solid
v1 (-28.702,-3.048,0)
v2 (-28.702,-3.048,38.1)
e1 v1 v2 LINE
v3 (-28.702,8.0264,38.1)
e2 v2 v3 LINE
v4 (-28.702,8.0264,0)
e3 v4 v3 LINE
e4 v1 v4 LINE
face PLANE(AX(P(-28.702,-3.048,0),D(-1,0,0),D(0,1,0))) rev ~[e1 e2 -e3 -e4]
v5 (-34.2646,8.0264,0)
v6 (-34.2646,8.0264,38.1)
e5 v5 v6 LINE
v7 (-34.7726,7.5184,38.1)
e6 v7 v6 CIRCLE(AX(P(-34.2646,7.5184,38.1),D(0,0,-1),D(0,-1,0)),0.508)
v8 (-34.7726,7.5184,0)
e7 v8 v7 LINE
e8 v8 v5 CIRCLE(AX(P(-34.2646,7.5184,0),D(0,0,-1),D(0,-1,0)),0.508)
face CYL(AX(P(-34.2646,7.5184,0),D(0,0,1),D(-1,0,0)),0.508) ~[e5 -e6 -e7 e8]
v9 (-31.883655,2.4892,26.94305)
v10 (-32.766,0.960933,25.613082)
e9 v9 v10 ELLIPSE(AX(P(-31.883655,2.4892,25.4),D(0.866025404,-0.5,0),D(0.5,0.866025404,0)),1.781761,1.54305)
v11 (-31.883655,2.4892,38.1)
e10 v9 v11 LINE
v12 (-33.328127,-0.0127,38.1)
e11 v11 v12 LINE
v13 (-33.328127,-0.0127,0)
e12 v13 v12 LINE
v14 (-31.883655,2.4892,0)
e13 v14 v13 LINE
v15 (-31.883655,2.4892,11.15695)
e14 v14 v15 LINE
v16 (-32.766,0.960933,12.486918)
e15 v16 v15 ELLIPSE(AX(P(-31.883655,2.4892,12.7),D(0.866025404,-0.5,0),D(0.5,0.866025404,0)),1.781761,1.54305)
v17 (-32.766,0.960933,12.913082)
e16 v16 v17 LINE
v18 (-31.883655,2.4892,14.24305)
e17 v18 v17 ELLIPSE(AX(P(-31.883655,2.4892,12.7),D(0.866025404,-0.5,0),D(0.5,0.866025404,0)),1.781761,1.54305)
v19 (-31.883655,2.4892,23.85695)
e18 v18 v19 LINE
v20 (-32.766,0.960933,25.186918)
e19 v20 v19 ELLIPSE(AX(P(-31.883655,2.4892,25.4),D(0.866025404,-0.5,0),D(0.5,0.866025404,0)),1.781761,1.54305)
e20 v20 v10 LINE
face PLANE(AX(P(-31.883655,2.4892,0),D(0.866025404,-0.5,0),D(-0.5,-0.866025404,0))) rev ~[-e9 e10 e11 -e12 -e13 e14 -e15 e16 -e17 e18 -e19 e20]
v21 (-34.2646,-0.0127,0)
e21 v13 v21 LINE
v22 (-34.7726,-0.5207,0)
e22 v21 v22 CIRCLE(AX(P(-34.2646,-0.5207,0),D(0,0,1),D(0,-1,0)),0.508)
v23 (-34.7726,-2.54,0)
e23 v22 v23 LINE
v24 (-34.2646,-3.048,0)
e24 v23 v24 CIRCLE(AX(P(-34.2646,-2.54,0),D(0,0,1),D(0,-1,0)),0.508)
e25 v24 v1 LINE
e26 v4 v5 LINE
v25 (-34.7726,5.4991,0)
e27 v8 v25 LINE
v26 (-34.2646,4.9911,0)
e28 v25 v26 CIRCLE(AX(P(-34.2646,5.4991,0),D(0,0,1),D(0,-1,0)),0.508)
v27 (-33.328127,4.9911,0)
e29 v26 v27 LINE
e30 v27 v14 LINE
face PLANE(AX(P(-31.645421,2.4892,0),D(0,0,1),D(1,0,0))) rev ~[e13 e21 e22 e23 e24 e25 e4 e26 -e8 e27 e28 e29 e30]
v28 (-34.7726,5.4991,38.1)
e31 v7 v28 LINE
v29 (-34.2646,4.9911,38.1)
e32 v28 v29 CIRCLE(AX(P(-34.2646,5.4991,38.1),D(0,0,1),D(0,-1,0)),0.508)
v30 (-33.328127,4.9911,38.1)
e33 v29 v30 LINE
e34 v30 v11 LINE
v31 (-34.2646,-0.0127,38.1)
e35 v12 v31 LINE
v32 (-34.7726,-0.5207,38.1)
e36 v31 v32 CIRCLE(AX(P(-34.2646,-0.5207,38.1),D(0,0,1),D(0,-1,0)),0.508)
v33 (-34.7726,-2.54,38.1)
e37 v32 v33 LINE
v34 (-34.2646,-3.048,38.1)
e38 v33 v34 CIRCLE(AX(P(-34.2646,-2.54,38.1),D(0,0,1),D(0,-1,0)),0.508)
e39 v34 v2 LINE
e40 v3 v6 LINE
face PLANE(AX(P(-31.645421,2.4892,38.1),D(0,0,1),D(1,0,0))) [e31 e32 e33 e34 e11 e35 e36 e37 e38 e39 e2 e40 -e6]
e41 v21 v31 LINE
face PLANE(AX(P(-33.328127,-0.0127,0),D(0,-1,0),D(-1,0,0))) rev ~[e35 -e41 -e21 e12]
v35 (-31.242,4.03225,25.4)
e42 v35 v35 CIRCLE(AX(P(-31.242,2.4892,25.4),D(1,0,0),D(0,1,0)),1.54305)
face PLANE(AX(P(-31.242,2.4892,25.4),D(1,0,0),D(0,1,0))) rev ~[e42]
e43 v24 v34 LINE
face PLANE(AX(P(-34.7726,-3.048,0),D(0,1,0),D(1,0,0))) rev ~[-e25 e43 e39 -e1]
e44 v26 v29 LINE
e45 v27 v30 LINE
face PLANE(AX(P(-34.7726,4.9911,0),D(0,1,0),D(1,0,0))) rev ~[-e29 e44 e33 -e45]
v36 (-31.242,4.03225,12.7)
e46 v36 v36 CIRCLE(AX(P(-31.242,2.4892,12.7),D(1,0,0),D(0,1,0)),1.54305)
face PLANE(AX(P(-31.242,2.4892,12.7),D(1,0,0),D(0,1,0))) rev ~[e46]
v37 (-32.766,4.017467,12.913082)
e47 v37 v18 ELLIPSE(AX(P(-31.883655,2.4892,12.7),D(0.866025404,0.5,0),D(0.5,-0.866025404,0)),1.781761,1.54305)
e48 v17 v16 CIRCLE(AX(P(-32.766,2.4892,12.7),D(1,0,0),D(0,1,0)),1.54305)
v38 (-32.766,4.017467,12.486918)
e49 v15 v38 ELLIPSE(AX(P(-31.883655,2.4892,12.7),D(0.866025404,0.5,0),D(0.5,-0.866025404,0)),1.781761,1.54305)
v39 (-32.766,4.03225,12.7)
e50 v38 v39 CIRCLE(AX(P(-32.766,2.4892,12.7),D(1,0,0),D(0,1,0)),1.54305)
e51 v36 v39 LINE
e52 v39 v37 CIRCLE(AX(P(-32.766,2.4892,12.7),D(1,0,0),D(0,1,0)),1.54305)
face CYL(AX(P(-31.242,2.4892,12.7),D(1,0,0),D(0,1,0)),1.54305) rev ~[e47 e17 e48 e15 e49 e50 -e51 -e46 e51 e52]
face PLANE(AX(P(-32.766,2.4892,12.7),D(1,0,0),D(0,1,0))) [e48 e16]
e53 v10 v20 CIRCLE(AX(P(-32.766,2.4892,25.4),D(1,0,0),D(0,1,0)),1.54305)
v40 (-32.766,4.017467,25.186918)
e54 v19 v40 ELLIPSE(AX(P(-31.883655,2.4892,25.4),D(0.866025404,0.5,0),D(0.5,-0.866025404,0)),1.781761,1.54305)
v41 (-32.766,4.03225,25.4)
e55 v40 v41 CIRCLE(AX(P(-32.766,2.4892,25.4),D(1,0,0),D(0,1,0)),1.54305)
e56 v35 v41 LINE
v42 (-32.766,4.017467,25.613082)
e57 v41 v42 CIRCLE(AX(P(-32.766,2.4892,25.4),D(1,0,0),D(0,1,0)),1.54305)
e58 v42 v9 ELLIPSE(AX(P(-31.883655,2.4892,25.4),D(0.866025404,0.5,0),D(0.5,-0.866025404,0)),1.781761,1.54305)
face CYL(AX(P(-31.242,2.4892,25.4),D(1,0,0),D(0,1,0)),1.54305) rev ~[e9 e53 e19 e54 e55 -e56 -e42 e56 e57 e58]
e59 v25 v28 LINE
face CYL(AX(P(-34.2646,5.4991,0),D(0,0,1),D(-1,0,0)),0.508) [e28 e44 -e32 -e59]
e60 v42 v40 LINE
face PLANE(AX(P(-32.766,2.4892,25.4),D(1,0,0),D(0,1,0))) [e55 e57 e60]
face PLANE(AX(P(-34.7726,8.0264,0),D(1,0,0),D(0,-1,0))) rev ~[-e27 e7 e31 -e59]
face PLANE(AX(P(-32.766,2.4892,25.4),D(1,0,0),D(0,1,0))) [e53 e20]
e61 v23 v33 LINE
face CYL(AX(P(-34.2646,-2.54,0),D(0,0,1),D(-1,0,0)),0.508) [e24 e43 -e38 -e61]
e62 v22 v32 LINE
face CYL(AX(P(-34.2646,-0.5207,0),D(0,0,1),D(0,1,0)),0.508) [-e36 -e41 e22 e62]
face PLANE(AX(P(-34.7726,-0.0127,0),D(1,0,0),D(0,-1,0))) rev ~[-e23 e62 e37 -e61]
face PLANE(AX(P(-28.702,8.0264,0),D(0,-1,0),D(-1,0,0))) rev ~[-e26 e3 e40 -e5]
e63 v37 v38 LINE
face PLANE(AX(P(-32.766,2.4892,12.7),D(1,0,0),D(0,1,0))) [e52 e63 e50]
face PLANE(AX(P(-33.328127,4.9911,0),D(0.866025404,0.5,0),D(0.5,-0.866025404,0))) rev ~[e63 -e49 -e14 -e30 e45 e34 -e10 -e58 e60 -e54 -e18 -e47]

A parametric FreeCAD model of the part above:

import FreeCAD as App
import Part
import Sketcher
from FreeCAD import Vector
Q = App.Units.Quantity


def edges_at(feature, points):
    """Names of the edges that pass closest to the given points."""
    edges = feature.Shape.Edges
    near = lambda p: min(range(len(edges)), key=lambda i: edges[i].distToShape(Part.Vertex(*p))[0])
    return sorted({f"Edge{near(p) + 1}" for p in points})


def add_polygon(sketch, points):
    """Adds a closed chain of lines whose ends are joined by coincident constraints."""
    first, n = sketch.GeometryCount, len(points)
    for a, b in zip(points, points[1:] + points[:1]):
        sketch.addGeometry(Part.LineSegment(App.Vector(*a, 0), App.Vector(*b, 0)), False)
    for i in range(n):
        sketch.addConstraint(Sketcher.Constraint("Coincident", first + i, 2, first + (i + 1) % n, 1))

doc = App.newDocument("Part")
body = doc.addObject("PartDesign::Body", "Body")

# Sketch on XY plane
sketch1 = body.newObject("Sketcher::SketchObject", "Sketch")
sketch1.AttachmentSupport = (doc.getObject("XY_Plane"), [""])
sketch1.MapMode = "FlatFace"
add_polygon(sketch1, [(-34.7726, 8.0264), (-34.7726, 4.9911), (-33.328127, 4.9911), (-31.883655, 2.4892), (-33.328127, -0.0127), (-34.7726, -0.0127), (-34.7726, -3.048), (-28.702, -3.048), (-28.702, 8.0264)])  # lines 0-8
sketch1.addConstraint([
    Sketcher.Constraint("Vertical", 0),
    Sketcher.Constraint("Horizontal", 1),
    Sketcher.Constraint("Horizontal", 4),
    Sketcher.Constraint("Vertical", 5),
    Sketcher.Constraint("Horizontal", 6),
    Sketcher.Constraint("Vertical", 7),
    Sketcher.Constraint("Horizontal", 8),
    Sketcher.Constraint("Vertical", 1, 2, 3, 2),
    Sketcher.Constraint("Vertical", 0, 2, 4, 2),
    Sketcher.Constraint("Equal", 0, 5),
    Sketcher.Constraint("Equal", 2, 3),
    Sketcher.Constraint("Angle", 2, Q("-60 deg")),
    Sketcher.Constraint("DistanceX", 6, 1, 6, 2, Q("0.239 in")),
    Sketcher.Constraint("DistanceY", 7, 1, 7, 2, Q("0.436 in")),
    Sketcher.Constraint("DistanceY", 5, 2, -1, 1, Q("0.12 in")),
    Sketcher.Constraint("DistanceX", 6, 2, -1, 1, Q("1.13 in")),
    Sketcher.Constraint("DistanceY", 0, 2, 0, 1, Q("0.1195 in")),
    Sketcher.Constraint("DistanceX", 1, 1, 1, 2, 1.444473),
])
pad1 = body.newObject("PartDesign::Pad", "Pad")
pad1.Profile = sketch1
pad1.Length = Q("1.5 in")

# Sketch on YZ plane
sketch2 = body.newObject("Sketcher::SketchObject", "Sketch001")
sketch2.AttachmentSupport = (doc.getObject("YZ_Plane"), [""])
sketch2.MapMode = "FlatFace"
sketch2.AttachmentOffset = App.Placement(Vector(0, 0, -1.23 * 25.4), App.Rotation())
sketch2.addGeometry([
    Part.Circle(Vector(2.4892, 25.4, 0), Vector(0, 0, 1), 1.54305),
    Part.Circle(Vector(2.4892, 12.7, 0), Vector(0, 0, 1), 1.54305),
], False)
sketch2.addConstraint([
    Sketcher.Constraint("Equal", 0, 1),
    Sketcher.Constraint("Vertical", 0, 3, 1, 3),
    Sketcher.Constraint("DistanceY", -1, 1, 0, 3, Q("1 in")),
    Sketcher.Constraint("Diameter", 0, Q("0.1215 in")),
    Sketcher.Constraint("DistanceY", -1, 1, 1, 3, Q("0.5 in")),
    Sketcher.Constraint("DistanceX", -1, 1, 0, 3, Q("0.098 in")),
])
pocket1 = body.newObject("PartDesign::Pocket", "Pocket")
pocket1.Profile = sketch2
pocket1.Length = Q("0.06 in")
doc.recompute()

fillet = body.newObject("PartDesign::Fillet", "Fillet")
fillet.Base = (pocket1, edges_at(pocket1, [
    (-34.773, -3.048, 19.05),
    (-34.773, 8.026, 19.05),
    (-34.773, 4.991, 19.05),
    (-34.773, -0.013, 19.05),
]))
fillet.Radius = Q("0.02 in")

doc.recompute()
